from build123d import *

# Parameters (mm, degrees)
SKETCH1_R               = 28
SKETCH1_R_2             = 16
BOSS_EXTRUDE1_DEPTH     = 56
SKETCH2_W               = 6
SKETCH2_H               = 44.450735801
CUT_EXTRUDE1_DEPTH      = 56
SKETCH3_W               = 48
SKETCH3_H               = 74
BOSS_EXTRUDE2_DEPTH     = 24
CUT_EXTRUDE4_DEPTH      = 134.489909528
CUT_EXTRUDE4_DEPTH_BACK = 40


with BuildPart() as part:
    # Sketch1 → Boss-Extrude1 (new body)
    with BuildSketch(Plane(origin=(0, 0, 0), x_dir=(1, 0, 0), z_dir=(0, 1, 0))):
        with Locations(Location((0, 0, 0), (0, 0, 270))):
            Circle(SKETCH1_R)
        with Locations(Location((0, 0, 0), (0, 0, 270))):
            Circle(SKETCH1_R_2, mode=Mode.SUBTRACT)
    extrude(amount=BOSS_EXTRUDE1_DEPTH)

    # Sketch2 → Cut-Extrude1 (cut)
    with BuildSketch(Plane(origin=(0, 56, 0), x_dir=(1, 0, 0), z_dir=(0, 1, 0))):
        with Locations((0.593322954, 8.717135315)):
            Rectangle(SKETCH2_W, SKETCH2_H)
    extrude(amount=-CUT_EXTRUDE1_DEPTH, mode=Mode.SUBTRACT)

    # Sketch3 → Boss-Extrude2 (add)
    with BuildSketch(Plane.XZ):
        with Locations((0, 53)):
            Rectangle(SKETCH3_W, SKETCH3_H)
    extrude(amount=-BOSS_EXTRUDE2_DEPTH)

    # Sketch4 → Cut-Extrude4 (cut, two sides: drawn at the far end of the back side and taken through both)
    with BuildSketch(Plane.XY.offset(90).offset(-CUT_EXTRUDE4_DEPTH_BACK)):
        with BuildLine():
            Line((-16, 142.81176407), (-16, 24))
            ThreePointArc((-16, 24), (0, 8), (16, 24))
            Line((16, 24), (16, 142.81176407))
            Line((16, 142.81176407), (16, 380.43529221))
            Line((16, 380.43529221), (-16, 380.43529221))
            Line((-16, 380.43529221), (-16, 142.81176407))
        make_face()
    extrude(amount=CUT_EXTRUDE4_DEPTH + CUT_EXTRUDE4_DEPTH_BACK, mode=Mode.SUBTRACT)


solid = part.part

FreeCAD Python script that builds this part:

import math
import FreeCAD as App
import Part
import Sketcher
Q = App.Units.Quantity


def add_polygon(sketch, points):
    """Adds a closed chain of lines whose ends are joined by coincident constraints."""
    first, n = sketch.GeometryCount, len(points)
    for a, b in zip(points, points[1:] + points[:1]):
        sketch.addGeometry(Part.LineSegment(App.Vector(*a, 0), App.Vector(*b, 0)), False)
    for i in range(n):
        sketch.addConstraint(Sketcher.Constraint("Coincident", first + i, 2, first + (i + 1) % n, 1))

doc = App.newDocument("Part")
body = doc.addObject("PartDesign::Body", "Body")

sketch1 = body.newObject("Sketcher::SketchObject", "Sketch")
sketch1.AttachmentSupport = (doc.getObject("XZ_Plane"), [""])
sketch1.MapMode = "FlatFace"
sketch1.addGeometry([
    Part.Circle(App.Vector(0, 0, 0), App.Vector(0, 0, 1), 28),
    Part.Circle(App.Vector(0, 0, 0), App.Vector(0, 0, 1), 16),
], False)
sketch1.addConstraint([
    Sketcher.Constraint("Coincident", 0, 3, -1, 1),
    Sketcher.Constraint("Coincident", 1, 3, -1, 1),
    Sketcher.Constraint("Diameter", 0, Q("56 mm")),
    Sketcher.Constraint("Diameter", 1, Q("32 mm")),
])
pad1 = body.newObject("PartDesign::Pad", "Pad")
pad1.Profile = sketch1
pad1.Length = 56
pad1.Reversed = True

sketch2 = body.newObject("Sketcher::SketchObject", "Sketch001")
sketch2.AttachmentSupport = (doc.getObject("XZ_Plane"), [""])
sketch2.MapMode = "FlatFace"
sketch2.AttachmentOffset = App.Placement(App.Vector(0, 0, -56), App.Rotation())
add_polygon(sketch2, [(-2, -31), (-2, 14), (4, 14), (4, -31)])
sketch2.addConstraint([
    Sketcher.Constraint("Vertical", 0),
    Sketcher.Constraint("Horizontal", 1),
    Sketcher.Constraint("Vertical", 2),
    Sketcher.Constraint("Horizontal", 3),
    Sketcher.Constraint("DistanceX", 1, 1, 1, 2, Q("6 mm")),
    Sketcher.Constraint("DistanceY", 0, 1, 0, 2, Q("44.450736 mm")),
    Sketcher.Constraint("DistanceX", 0, 2, -1, 1, Q("2.406677 mm")),
    Sketcher.Constraint("DistanceY", -1, 1, 0, 2, Q("13.508233 mm")),
])
pocket1 = body.newObject("PartDesign::Pocket", "Pocket")
pocket1.Profile = sketch2
pocket1.Length = 56
pocket1.Reversed = True

sketch3 = body.newObject("Sketcher::SketchObject", "Sketch002")
sketch3.AttachmentSupport = (doc.getObject("XZ_Plane"), [""])
sketch3.MapMode = "FlatFace"
add_polygon(sketch3, [(-24, 90), (-24, 16), (24, 16), (24, 90)])
sketch3.addConstraint([
    Sketcher.Constraint("Vertical", 0),
    Sketcher.Constraint("Horizontal", 1),
    Sketcher.Constraint("Vertical", 2),
    Sketcher.Constraint("Horizontal", 3),
    Sketcher.Constraint("DistanceX", 1, 1, 1, 2, Q("48 mm")),
    Sketcher.Constraint("DistanceY", 0, 2, 0, 1, Q("74 mm")),
    Sketcher.Constraint("DistanceX", 0, 2, -1, 1, Q("24 mm")),
    Sketcher.Constraint("DistanceY", -1, 1, 0, 2, Q("16 mm")),
])
pad2 = body.newObject("PartDesign::Pad", "Pad001")
pad2.Profile = sketch3
pad2.Length = 24
pad2.Reversed = True

sketch4 = body.newObject("Sketcher::SketchObject", "Sketch003")
sketch4.AttachmentSupport = (doc.getObject("XY_Plane"), [""])
sketch4.MapMode = "FlatFace"
sketch4.AttachmentOffset = App.Placement(App.Vector(0, 0, 90), App.Rotation())
sketch4.addGeometry([
    Part.ArcOfCircle(Part.Circle(App.Vector(0, 24, 0), App.Vector(0, 0, 1), 16), math.radians(180), math.radians(360)),
    Part.LineSegment(App.Vector(16, 24, 0), App.Vector(16, 380, 0)),
    Part.LineSegment(App.Vector(16, 380, 0), App.Vector(-16, 380, 0)),
    Part.LineSegment(App.Vector(-16, 380, 0), App.Vector(-16, 24, 0)),
], False)
sketch4.addConstraint([
    Sketcher.Constraint("Tangent", 0, 2, 1, 1),
    Sketcher.Constraint("Coincident", 1, 2, 2, 1),
    Sketcher.Constraint("Coincident", 2, 2, 3, 1),
    Sketcher.Constraint("Tangent", 3, 2, 0, 1),
    Sketcher.Constraint("Vertical", 1),
    Sketcher.Constraint("Horizontal", 2),
    Sketcher.Constraint("Vertical", 3),
    Sketcher.Constraint("PointOnObject", 0, 3, -2),
    Sketcher.Constraint("Radius", 0, Q("16 mm")),
    Sketcher.Constraint("DistanceY", -1, 1, 0, 3, Q("24 mm")),
    Sketcher.Constraint("DistanceY", 1, 1, 1, 2, Q("356.435292 mm")),
])
pocket2 = body.newObject("PartDesign::Pocket", "Pocket001")
pocket2.Profile = sketch4
pocket2.Type = "TwoLengths"
pocket2.Length = 134.48991
pocket2.Length2 = 40
pocket2.Reversed = True

doc.recompute()
